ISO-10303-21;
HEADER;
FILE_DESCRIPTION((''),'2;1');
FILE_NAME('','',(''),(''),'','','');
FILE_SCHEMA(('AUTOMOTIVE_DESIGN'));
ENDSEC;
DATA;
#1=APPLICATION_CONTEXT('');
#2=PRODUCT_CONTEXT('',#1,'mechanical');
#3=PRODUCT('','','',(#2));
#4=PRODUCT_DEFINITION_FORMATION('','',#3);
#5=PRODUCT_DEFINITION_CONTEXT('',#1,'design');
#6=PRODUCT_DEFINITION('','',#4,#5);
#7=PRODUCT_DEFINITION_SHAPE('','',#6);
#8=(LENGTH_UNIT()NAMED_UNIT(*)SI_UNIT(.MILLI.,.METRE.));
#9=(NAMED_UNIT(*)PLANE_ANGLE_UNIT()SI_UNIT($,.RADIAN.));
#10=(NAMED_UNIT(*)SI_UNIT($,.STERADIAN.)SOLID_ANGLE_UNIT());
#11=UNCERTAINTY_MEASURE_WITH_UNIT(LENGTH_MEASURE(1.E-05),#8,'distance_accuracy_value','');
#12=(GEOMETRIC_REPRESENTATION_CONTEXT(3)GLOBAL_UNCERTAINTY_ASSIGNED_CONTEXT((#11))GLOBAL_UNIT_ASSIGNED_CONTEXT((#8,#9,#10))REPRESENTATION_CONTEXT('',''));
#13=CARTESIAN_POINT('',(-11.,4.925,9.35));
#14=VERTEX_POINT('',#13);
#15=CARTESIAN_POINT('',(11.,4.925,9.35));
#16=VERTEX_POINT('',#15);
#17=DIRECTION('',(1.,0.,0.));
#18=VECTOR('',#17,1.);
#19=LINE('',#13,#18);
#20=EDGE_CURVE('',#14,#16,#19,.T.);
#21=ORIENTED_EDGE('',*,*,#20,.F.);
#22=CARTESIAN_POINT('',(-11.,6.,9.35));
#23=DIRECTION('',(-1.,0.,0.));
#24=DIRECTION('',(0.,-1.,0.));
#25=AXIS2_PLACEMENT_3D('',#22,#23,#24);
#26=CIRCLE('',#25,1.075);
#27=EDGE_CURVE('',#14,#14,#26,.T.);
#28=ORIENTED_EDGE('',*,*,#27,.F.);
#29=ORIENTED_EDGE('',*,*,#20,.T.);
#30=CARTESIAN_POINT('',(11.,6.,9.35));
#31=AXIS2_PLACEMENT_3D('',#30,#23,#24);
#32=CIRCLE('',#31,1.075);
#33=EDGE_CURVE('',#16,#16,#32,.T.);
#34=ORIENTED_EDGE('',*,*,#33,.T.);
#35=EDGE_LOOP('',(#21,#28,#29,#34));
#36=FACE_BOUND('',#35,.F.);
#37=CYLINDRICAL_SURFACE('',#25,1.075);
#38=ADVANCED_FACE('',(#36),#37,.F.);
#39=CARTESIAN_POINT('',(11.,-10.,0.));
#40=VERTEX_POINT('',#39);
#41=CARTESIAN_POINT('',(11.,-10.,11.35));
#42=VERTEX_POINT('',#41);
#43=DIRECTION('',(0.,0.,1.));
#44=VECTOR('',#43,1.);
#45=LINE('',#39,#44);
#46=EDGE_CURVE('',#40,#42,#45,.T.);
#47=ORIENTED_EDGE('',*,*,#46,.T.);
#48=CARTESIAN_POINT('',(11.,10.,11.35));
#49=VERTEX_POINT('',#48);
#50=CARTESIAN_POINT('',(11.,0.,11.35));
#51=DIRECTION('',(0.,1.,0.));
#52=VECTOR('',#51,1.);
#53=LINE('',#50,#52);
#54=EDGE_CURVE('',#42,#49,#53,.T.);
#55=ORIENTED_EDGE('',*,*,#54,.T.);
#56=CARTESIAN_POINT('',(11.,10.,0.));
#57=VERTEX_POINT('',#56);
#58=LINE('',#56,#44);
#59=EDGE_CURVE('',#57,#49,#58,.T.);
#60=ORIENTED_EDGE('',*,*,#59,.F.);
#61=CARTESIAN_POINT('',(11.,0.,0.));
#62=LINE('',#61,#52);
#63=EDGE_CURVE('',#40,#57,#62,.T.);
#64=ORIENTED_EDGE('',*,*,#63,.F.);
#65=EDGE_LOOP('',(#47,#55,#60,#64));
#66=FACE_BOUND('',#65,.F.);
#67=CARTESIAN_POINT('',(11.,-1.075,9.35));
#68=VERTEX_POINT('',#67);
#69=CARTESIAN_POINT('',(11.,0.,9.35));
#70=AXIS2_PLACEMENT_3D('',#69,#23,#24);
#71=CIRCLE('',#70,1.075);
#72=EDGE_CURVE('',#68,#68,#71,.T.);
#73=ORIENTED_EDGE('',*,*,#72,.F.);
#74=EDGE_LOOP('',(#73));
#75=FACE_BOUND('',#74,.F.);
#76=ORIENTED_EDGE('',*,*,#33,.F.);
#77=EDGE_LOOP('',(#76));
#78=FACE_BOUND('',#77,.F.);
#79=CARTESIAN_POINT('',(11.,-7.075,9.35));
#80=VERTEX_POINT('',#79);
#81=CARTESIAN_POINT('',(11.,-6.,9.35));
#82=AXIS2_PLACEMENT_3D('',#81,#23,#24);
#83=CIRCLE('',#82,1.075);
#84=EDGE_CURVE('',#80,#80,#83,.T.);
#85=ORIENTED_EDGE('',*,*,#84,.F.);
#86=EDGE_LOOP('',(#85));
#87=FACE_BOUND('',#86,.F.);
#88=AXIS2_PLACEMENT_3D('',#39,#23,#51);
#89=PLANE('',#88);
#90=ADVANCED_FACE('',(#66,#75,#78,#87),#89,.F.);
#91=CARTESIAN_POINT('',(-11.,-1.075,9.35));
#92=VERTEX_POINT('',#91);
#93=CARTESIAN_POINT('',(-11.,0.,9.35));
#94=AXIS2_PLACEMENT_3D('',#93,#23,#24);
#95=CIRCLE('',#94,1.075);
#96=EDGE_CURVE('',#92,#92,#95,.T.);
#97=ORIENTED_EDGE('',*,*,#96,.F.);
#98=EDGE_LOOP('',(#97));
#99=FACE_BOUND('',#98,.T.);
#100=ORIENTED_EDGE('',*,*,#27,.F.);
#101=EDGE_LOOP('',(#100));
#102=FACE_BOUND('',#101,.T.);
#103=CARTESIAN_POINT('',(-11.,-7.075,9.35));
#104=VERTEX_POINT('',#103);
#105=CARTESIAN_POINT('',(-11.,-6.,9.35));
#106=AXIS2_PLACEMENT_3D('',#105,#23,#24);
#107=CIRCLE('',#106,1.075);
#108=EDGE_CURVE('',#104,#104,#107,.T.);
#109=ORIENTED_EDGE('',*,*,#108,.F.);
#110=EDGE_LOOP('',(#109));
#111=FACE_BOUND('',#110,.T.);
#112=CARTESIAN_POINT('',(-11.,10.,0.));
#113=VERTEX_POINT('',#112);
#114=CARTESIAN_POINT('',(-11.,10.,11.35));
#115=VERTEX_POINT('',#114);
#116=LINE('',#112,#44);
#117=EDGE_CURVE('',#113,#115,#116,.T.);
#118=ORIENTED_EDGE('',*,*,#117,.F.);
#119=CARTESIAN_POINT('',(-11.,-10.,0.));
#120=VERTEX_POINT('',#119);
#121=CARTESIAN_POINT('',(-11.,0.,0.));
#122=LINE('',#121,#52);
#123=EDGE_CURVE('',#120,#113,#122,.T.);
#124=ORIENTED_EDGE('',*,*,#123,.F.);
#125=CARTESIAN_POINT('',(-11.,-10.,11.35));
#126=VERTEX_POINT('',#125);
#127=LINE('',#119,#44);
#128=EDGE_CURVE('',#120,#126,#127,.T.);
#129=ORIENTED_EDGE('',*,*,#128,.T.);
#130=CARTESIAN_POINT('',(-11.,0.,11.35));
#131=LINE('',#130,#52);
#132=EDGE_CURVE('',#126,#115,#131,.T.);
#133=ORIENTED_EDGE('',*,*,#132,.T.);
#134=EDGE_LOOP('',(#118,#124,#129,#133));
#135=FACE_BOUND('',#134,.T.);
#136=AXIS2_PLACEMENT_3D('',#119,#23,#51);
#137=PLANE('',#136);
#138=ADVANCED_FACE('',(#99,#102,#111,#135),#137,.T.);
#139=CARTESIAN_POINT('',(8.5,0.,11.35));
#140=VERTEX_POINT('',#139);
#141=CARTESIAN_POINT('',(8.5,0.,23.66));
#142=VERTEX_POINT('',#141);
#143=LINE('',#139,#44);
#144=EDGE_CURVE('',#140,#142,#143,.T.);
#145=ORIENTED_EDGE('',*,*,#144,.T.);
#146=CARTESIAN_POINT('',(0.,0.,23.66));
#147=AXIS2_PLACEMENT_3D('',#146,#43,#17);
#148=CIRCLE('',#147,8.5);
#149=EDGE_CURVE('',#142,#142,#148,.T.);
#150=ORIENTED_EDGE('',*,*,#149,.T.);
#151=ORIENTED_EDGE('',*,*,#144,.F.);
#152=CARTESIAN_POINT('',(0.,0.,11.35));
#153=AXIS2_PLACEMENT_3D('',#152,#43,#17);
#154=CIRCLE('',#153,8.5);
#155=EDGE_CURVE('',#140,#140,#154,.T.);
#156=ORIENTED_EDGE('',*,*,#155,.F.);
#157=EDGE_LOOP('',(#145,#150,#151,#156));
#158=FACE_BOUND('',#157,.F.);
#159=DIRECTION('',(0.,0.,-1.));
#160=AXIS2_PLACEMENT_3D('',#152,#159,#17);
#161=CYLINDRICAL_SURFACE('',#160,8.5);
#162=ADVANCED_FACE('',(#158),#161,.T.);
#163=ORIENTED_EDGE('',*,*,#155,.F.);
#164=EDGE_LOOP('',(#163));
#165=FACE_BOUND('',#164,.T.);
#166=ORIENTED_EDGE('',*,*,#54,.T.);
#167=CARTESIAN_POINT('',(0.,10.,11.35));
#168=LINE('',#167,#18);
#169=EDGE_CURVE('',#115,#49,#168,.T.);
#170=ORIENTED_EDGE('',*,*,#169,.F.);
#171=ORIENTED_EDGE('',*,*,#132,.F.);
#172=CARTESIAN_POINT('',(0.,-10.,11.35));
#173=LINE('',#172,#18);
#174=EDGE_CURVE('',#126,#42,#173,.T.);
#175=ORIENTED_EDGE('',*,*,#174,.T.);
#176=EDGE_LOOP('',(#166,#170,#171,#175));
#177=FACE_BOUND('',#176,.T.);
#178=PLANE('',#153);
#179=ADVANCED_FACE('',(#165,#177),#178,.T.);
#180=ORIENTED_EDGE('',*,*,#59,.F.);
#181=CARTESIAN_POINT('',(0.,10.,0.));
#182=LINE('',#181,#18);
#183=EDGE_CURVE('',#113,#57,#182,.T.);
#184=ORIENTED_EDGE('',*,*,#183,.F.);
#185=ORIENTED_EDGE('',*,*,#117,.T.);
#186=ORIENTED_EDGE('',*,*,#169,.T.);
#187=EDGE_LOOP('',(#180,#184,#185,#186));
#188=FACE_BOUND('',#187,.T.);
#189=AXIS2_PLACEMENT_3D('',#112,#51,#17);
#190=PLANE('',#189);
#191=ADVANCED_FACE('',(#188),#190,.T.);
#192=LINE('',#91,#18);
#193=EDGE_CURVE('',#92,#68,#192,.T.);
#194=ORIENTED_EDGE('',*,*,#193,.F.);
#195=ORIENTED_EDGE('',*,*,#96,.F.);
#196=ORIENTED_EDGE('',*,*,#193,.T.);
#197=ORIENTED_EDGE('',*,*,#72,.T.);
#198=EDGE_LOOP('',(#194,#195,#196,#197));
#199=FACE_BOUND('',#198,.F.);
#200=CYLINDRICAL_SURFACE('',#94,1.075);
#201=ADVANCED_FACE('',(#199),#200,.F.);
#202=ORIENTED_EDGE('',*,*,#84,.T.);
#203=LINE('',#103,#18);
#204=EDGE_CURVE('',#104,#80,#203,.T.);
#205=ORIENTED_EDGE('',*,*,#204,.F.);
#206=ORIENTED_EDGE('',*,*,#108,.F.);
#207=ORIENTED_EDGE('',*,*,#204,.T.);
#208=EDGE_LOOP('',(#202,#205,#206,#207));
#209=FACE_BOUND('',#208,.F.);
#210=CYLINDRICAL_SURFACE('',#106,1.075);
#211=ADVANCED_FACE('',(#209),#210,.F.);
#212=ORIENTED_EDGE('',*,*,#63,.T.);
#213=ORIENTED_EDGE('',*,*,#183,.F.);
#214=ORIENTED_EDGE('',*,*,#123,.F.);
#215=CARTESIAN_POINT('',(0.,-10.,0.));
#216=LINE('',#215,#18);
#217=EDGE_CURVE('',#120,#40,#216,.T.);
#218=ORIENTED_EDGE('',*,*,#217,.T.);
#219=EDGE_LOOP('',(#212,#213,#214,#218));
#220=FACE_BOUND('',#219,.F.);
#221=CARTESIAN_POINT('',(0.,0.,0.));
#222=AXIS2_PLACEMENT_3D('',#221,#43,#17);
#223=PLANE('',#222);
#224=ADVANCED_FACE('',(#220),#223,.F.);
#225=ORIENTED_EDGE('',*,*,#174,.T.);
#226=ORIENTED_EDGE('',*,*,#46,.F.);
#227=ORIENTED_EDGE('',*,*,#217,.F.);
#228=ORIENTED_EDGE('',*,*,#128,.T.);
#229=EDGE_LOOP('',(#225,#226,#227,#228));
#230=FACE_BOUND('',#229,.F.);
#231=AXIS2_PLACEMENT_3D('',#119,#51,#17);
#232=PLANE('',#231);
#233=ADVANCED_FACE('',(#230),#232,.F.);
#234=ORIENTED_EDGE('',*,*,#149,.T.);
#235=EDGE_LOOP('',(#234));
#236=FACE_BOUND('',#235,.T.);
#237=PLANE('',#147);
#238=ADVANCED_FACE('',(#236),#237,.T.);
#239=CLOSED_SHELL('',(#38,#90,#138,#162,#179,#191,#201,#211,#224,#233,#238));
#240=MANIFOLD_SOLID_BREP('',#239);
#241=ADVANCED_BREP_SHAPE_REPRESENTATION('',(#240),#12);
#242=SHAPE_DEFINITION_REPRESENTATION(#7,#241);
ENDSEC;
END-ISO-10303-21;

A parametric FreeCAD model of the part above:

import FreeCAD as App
import Part
import Sketcher
from FreeCAD import Vector
Q = App.Units.Quantity

doc = App.newDocument("Part")
body = doc.addObject("PartDesign::Body", "Body")

# Sketch on XY plane
sketch1 = doc.addObject("Sketcher::SketchObject", "Sketch")
body.addObject(sketch1)
sketch1.AttachmentSupport = (doc.XY_Plane, [""])
sketch1.MapMode = "FlatFace"
sketch1.addGeometry([
    Part.LineSegment(Vector(-11, 10, 0), Vector(-11, -10, 0)),
    Part.LineSegment(Vector(-11, -10, 0), Vector(11, -10, 0)),
    Part.LineSegment(Vector(11, -10, 0), Vector(11, 10, 0)),
    Part.LineSegment(Vector(11, 10, 0), Vector(-11, 10, 0)),
], False)
sketch1.addConstraint([
    Sketcher.Constraint("Coincident", 0, 2, 1, 1),
    Sketcher.Constraint("Coincident", 1, 2, 2, 1),
    Sketcher.Constraint("Coincident", 2, 2, 3, 1),
    Sketcher.Constraint("Coincident", 3, 2, 0, 1),
    Sketcher.Constraint("Vertical", 0),
    Sketcher.Constraint("Horizontal", 1),
    Sketcher.Constraint("Vertical", 2),
    Sketcher.Constraint("Horizontal", 3),
    Sketcher.Constraint("Symmetric", 0, 2, 2, 2, -1, 1),
    Sketcher.Constraint("DistanceX", 1, 1, 1, 2, Q("22 mm")),
    Sketcher.Constraint("DistanceY", 0, 2, 0, 1, Q("20 mm")),
])
pad1 = doc.addObject("PartDesign::Pad", "Pad")
body.addObject(pad1)
pad1.Profile = sketch1
pad1.Length = 11.35

# Sketch on YZ plane
sketch2 = doc.addObject("Sketcher::SketchObject", "Sketch001")
body.addObject(sketch2)
sketch2.AttachmentSupport = (doc.YZ_Plane, [""])
sketch2.MapMode = "FlatFace"
sketch2.AttachmentOffset = App.Placement(Vector(0, 0, -11), App.Rotation())
sketch2.addGeometry([
    Part.Circle(Vector(6, 9.35, 0), Vector(0, 0, 1), 1.075),
    Part.Circle(Vector(0, 9.35, 0), Vector(0, 0, 1), 1.075),
    Part.Circle(Vector(-6, 9.35, 0), Vector(0, 0, 1), 1.075),
], False)
sketch2.addConstraint([
    Sketcher.Constraint("Equal", 0, 1),
    Sketcher.Constraint("Equal", 1, 2),
    Sketcher.Constraint("Symmetric", 0, 3, 2, 3, -2),
    Sketcher.Constraint("PointOnObject", 1, 3, -2),
    Sketcher.Constraint("Horizontal", 0, 3, 1, 3),
    Sketcher.Constraint("Diameter", 0, Q("2.15 mm")),
    Sketcher.Constraint("DistanceX", -1, 1, 0, 3, Q("6 mm")),
    Sketcher.Constraint("DistanceY", -1, 1, 0, 3, Q("9.35 mm")),
])
pocket1 = doc.addObject("PartDesign::Pocket", "Pocket")
body.addObject(pocket1)
pocket1.Profile = sketch2
pocket1.Type = "ThroughAll"
pocket1.Reversed = True

# Sketch on XY plane
sketch3 = doc.addObject("Sketcher::SketchObject", "Sketch002")
body.addObject(sketch3)
sketch3.AttachmentSupport = (doc.XY_Plane, [""])
sketch3.MapMode = "FlatFace"
sketch3.AttachmentOffset = App.Placement(Vector(0, 0, 11.35), App.Rotation())
sketch3.addGeometry(Part.Circle(Vector(0, 0, 0), Vector(0, 0, 1), 8.5), False)
sketch3.addConstraint([
    Sketcher.Constraint("Coincident", 0, 3, -1, 1),
    Sketcher.Constraint("Diameter", 0, Q("17 mm")),
])
pad2 = doc.addObject("PartDesign::Pad", "Pad001")
body.addObject(pad2)
pad2.Profile = sketch3
pad2.Length = 12.31

doc.recompute()
